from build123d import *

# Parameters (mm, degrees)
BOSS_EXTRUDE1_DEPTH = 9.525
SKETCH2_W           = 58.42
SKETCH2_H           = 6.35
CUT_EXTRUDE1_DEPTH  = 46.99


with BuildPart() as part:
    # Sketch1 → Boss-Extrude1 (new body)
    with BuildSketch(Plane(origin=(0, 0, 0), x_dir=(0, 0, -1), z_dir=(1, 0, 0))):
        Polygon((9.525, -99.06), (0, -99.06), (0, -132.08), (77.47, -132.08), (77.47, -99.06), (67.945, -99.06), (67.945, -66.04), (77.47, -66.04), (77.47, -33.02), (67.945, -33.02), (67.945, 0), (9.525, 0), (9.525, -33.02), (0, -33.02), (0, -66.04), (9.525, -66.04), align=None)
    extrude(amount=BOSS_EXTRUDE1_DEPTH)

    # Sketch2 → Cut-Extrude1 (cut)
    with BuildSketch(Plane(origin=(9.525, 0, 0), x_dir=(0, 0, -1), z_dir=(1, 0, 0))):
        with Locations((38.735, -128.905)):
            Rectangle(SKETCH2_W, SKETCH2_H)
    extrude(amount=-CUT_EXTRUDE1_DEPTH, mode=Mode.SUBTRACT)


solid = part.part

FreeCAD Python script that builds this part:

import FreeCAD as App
import Part
import Sketcher
from FreeCAD import Vector
Q = App.Units.Quantity

doc = App.newDocument("Part")
params = doc.addObject("Spreadsheet::Sheet", "Params")
for row, (alias, value) in enumerate([
    ("sketch1_width", "1.3 in"),
    ("sketch1_height", "2.3 in"),
    ("sketch1_height2", "3.05 in"),
    ("pad1_length", "0.375 in"),
    ("sketch2_height", "2.3 in"),
    ("sketch2_width", "0.25 in"),
    ("pocket1_length", "1.85 in"),
], start=1):
    params.set(f"A{row}", alias)
    params.set(f"B{row}", "=" + value)
    params.setAlias(f"B{row}", alias)

body = doc.addObject("PartDesign::Body", "Body")

# Sketch on YZ plane
sketch1 = body.newObject("Sketcher::SketchObject", "Sketch")
sketch1.AttachmentSupport = (doc.getObject("YZ_Plane"), [""])
sketch1.MapMode = "FlatFace"
sketch1.addGeometry(Part.LineSegment(Vector(-99, -10, 0), Vector(-99, 0, 0)), False)
sketch1.addGeometry(Part.LineSegment(Vector(-99, 0, 0), Vector(-132, 0, 0)), False)
sketch1.addGeometry(Part.LineSegment(Vector(-132, 0, 0), Vector(-132, -77, 0)), False)
sketch1.addGeometry(Part.LineSegment(Vector(-132, -77, 0), Vector(-99, -77, 0)), False)
sketch1.addGeometry(Part.LineSegment(Vector(-99, -77, 0), Vector(-99, -68, 0)), False)
sketch1.addGeometry(Part.LineSegment(Vector(-99, -68, 0), Vector(-66, -68, 0)), False)
sketch1.addGeometry(Part.LineSegment(Vector(-66, -68, 0), Vector(-66, -77, 0)), False)
sketch1.addGeometry(Part.LineSegment(Vector(-66, -77, 0), Vector(-33, -77, 0)), False)
sketch1.addGeometry(Part.LineSegment(Vector(-33, -77, 0), Vector(-33, -68, 0)), False)
sketch1.addGeometry(Part.LineSegment(Vector(-33, -68, 0), Vector(0, -68, 0)), False)
sketch1.addGeometry(Part.LineSegment(Vector(0, -68, 0), Vector(0, -10, 0)), False)
sketch1.addGeometry(Part.LineSegment(Vector(0, -10, 0), Vector(-33, -10, 0)), False)
sketch1.addGeometry(Part.LineSegment(Vector(-33, -10, 0), Vector(-33, 0, 0)), False)
sketch1.addGeometry(Part.LineSegment(Vector(-33, 0, 0), Vector(-66, 0, 0)), False)
sketch1.addGeometry(Part.LineSegment(Vector(-66, 0, 0), Vector(-66, -10, 0)), False)
sketch1.addGeometry(Part.LineSegment(Vector(-66, -10, 0), Vector(-99, -10, 0)), False)
sketch1.addConstraint(Sketcher.Constraint("Coincident", 0, 2, 1, 1))
sketch1.addConstraint(Sketcher.Constraint("Coincident", 1, 2, 2, 1))
sketch1.addConstraint(Sketcher.Constraint("Coincident", 2, 2, 3, 1))
sketch1.addConstraint(Sketcher.Constraint("Coincident", 3, 2, 4, 1))
sketch1.addConstraint(Sketcher.Constraint("Coincident", 4, 2, 5, 1))
sketch1.addConstraint(Sketcher.Constraint("Coincident", 5, 2, 6, 1))
sketch1.addConstraint(Sketcher.Constraint("Coincident", 6, 2, 7, 1))
sketch1.addConstraint(Sketcher.Constraint("Coincident", 7, 2, 8, 1))
sketch1.addConstraint(Sketcher.Constraint("Coincident", 8, 2, 9, 1))
sketch1.addConstraint(Sketcher.Constraint("Coincident", 9, 2, 10, 1))
sketch1.addConstraint(Sketcher.Constraint("Coincident", 10, 2, 11, 1))
sketch1.addConstraint(Sketcher.Constraint("Coincident", 11, 2, 12, 1))
sketch1.addConstraint(Sketcher.Constraint("Coincident", 12, 2, 13, 1))
sketch1.addConstraint(Sketcher.Constraint("Coincident", 13, 2, 14, 1))
sketch1.addConstraint(Sketcher.Constraint("Coincident", 14, 2, 15, 1))
sketch1.addConstraint(Sketcher.Constraint("Coincident", 15, 2, 0, 1))
sketch1.addConstraint(Sketcher.Constraint("Vertical", 0))
sketch1.addConstraint(Sketcher.Constraint("Horizontal", 1))
sketch1.addConstraint(Sketcher.Constraint("Vertical", 2))
sketch1.addConstraint(Sketcher.Constraint("Horizontal", 3))
sketch1.addConstraint(Sketcher.Constraint("Vertical", 4))
sketch1.addConstraint(Sketcher.Constraint("Horizontal", 5))
sketch1.addConstraint(Sketcher.Constraint("Vertical", 6))
sketch1.addConstraint(Sketcher.Constraint("Horizontal", 7))
sketch1.addConstraint(Sketcher.Constraint("Vertical", 8))
sketch1.addConstraint(Sketcher.Constraint("Horizontal", 9))
sketch1.addConstraint(Sketcher.Constraint("Vertical", 10))
sketch1.addConstraint(Sketcher.Constraint("Horizontal", 11))
sketch1.addConstraint(Sketcher.Constraint("Vertical", 12))
sketch1.addConstraint(Sketcher.Constraint("Horizontal", 13))
sketch1.addConstraint(Sketcher.Constraint("Vertical", 14))
sketch1.addConstraint(Sketcher.Constraint("Horizontal", 15))
sketch1.addConstraint(Sketcher.Constraint("PointOnObject", 0, 2, -1))
sketch1.addConstraint(Sketcher.Constraint("PointOnObject", 9, 2, -2))
sketch1.addConstraint(Sketcher.Constraint("PointOnObject", 12, 2, -1))
sketch1.addConstraint(Sketcher.Constraint("Horizontal", 3, 2, 6, 2))
sketch1.addConstraint(Sketcher.Constraint("Horizontal", 5, 2, 8, 2))
sketch1.addConstraint(Sketcher.Constraint("Horizontal", 11, 2, 14, 2))
sketch1.addConstraint(Sketcher.Constraint("Vertical", 0, 2, 3, 2))
sketch1.addConstraint(Sketcher.Constraint("Vertical", 8, 2, 11, 2))
sketch1.addConstraint(Sketcher.Constraint("Vertical", 6, 2, 13, 2))
sketch1.addConstraint(Sketcher.Constraint("Equal", 3, 5))
sketch1.addConstraint(Sketcher.Constraint("Equal", 5, 7))
sketch1.addConstraint(Sketcher.Constraint("Equal", 7, 9))
sketch1.addConstraint(Sketcher.Constraint("Equal", 0, 4))
sketch1.addConstraint(Sketcher.Constraint("DistanceX", 1, 2, 1, 1, Q("1.3 in")))
sketch1.addConstraint(Sketcher.Constraint("DistanceY", 10, 1, 10, 2, Q("2.3 in")))
sketch1.addConstraint(Sketcher.Constraint("DistanceY", 2, 2, 2, 1, Q("3.05 in")))
sketch1.setExpression("Constraints[45]", "Params.sketch1_width")
sketch1.setExpression("Constraints[46]", "Params.sketch1_height")
sketch1.setExpression("Constraints[47]", "Params.sketch1_height2")
pad1 = body.newObject("PartDesign::Pad", "Pad")
pad1.Profile = sketch1
pad1.setExpression("Length", "Params.pad1_length")

# Sketch on YZ plane
sketch2 = body.newObject("Sketcher::SketchObject", "Sketch001")
sketch2.AttachmentSupport = (doc.getObject("YZ_Plane"), [""])
sketch2.MapMode = "FlatFace"
sketch2.AttachmentOffset = App.Placement(Vector(0, 0, 0.375 * 25.4), App.Rotation())
sketch2.addGeometry(Part.LineSegment(Vector(-126, -10, 0), Vector(-132, -10, 0)), False)
sketch2.addGeometry(Part.LineSegment(Vector(-132, -10, 0), Vector(-132, -68, 0)), False)
sketch2.addGeometry(Part.LineSegment(Vector(-132, -68, 0), Vector(-126, -68, 0)), False)
sketch2.addGeometry(Part.LineSegment(Vector(-126, -68, 0), Vector(-126, -10, 0)), False)
sketch2.addConstraint(Sketcher.Constraint("Coincident", 0, 2, 1, 1))
sketch2.addConstraint(Sketcher.Constraint("Coincident", 1, 2, 2, 1))
sketch2.addConstraint(Sketcher.Constraint("Coincident", 2, 2, 3, 1))
sketch2.addConstraint(Sketcher.Constraint("Coincident", 3, 2, 0, 1))
sketch2.addConstraint(Sketcher.Constraint("Horizontal", 0))
sketch2.addConstraint(Sketcher.Constraint("Vertical", 1))
sketch2.addConstraint(Sketcher.Constraint("Horizontal", 2))
sketch2.addConstraint(Sketcher.Constraint("Vertical", 3))
sketch2.addConstraint(Sketcher.Constraint("DistanceY", 1, 2, 1, 1, Q("2.3 in")))
sketch2.addConstraint(Sketcher.Constraint("DistanceX", 0, 2, 0, 1, Q("0.25 in")))
sketch2.addConstraint(Sketcher.Constraint("DistanceX", 0, 2, -1, 1, Q("5.2 in")))
sketch2.addConstraint(Sketcher.Constraint("DistanceY", 0, 2, -1, 1, Q("0.375 in")))
sketch2.setExpression("Constraints[8]", "Params.sketch2_height")
sketch2.setExpression("Constraints[9]", "Params.sketch2_width")
pocket1 = body.newObject("PartDesign::Pocket", "Pocket")
pocket1.Profile = sketch2
pocket1.setExpression("Length", "Params.pocket1_length")

doc.recompute()
